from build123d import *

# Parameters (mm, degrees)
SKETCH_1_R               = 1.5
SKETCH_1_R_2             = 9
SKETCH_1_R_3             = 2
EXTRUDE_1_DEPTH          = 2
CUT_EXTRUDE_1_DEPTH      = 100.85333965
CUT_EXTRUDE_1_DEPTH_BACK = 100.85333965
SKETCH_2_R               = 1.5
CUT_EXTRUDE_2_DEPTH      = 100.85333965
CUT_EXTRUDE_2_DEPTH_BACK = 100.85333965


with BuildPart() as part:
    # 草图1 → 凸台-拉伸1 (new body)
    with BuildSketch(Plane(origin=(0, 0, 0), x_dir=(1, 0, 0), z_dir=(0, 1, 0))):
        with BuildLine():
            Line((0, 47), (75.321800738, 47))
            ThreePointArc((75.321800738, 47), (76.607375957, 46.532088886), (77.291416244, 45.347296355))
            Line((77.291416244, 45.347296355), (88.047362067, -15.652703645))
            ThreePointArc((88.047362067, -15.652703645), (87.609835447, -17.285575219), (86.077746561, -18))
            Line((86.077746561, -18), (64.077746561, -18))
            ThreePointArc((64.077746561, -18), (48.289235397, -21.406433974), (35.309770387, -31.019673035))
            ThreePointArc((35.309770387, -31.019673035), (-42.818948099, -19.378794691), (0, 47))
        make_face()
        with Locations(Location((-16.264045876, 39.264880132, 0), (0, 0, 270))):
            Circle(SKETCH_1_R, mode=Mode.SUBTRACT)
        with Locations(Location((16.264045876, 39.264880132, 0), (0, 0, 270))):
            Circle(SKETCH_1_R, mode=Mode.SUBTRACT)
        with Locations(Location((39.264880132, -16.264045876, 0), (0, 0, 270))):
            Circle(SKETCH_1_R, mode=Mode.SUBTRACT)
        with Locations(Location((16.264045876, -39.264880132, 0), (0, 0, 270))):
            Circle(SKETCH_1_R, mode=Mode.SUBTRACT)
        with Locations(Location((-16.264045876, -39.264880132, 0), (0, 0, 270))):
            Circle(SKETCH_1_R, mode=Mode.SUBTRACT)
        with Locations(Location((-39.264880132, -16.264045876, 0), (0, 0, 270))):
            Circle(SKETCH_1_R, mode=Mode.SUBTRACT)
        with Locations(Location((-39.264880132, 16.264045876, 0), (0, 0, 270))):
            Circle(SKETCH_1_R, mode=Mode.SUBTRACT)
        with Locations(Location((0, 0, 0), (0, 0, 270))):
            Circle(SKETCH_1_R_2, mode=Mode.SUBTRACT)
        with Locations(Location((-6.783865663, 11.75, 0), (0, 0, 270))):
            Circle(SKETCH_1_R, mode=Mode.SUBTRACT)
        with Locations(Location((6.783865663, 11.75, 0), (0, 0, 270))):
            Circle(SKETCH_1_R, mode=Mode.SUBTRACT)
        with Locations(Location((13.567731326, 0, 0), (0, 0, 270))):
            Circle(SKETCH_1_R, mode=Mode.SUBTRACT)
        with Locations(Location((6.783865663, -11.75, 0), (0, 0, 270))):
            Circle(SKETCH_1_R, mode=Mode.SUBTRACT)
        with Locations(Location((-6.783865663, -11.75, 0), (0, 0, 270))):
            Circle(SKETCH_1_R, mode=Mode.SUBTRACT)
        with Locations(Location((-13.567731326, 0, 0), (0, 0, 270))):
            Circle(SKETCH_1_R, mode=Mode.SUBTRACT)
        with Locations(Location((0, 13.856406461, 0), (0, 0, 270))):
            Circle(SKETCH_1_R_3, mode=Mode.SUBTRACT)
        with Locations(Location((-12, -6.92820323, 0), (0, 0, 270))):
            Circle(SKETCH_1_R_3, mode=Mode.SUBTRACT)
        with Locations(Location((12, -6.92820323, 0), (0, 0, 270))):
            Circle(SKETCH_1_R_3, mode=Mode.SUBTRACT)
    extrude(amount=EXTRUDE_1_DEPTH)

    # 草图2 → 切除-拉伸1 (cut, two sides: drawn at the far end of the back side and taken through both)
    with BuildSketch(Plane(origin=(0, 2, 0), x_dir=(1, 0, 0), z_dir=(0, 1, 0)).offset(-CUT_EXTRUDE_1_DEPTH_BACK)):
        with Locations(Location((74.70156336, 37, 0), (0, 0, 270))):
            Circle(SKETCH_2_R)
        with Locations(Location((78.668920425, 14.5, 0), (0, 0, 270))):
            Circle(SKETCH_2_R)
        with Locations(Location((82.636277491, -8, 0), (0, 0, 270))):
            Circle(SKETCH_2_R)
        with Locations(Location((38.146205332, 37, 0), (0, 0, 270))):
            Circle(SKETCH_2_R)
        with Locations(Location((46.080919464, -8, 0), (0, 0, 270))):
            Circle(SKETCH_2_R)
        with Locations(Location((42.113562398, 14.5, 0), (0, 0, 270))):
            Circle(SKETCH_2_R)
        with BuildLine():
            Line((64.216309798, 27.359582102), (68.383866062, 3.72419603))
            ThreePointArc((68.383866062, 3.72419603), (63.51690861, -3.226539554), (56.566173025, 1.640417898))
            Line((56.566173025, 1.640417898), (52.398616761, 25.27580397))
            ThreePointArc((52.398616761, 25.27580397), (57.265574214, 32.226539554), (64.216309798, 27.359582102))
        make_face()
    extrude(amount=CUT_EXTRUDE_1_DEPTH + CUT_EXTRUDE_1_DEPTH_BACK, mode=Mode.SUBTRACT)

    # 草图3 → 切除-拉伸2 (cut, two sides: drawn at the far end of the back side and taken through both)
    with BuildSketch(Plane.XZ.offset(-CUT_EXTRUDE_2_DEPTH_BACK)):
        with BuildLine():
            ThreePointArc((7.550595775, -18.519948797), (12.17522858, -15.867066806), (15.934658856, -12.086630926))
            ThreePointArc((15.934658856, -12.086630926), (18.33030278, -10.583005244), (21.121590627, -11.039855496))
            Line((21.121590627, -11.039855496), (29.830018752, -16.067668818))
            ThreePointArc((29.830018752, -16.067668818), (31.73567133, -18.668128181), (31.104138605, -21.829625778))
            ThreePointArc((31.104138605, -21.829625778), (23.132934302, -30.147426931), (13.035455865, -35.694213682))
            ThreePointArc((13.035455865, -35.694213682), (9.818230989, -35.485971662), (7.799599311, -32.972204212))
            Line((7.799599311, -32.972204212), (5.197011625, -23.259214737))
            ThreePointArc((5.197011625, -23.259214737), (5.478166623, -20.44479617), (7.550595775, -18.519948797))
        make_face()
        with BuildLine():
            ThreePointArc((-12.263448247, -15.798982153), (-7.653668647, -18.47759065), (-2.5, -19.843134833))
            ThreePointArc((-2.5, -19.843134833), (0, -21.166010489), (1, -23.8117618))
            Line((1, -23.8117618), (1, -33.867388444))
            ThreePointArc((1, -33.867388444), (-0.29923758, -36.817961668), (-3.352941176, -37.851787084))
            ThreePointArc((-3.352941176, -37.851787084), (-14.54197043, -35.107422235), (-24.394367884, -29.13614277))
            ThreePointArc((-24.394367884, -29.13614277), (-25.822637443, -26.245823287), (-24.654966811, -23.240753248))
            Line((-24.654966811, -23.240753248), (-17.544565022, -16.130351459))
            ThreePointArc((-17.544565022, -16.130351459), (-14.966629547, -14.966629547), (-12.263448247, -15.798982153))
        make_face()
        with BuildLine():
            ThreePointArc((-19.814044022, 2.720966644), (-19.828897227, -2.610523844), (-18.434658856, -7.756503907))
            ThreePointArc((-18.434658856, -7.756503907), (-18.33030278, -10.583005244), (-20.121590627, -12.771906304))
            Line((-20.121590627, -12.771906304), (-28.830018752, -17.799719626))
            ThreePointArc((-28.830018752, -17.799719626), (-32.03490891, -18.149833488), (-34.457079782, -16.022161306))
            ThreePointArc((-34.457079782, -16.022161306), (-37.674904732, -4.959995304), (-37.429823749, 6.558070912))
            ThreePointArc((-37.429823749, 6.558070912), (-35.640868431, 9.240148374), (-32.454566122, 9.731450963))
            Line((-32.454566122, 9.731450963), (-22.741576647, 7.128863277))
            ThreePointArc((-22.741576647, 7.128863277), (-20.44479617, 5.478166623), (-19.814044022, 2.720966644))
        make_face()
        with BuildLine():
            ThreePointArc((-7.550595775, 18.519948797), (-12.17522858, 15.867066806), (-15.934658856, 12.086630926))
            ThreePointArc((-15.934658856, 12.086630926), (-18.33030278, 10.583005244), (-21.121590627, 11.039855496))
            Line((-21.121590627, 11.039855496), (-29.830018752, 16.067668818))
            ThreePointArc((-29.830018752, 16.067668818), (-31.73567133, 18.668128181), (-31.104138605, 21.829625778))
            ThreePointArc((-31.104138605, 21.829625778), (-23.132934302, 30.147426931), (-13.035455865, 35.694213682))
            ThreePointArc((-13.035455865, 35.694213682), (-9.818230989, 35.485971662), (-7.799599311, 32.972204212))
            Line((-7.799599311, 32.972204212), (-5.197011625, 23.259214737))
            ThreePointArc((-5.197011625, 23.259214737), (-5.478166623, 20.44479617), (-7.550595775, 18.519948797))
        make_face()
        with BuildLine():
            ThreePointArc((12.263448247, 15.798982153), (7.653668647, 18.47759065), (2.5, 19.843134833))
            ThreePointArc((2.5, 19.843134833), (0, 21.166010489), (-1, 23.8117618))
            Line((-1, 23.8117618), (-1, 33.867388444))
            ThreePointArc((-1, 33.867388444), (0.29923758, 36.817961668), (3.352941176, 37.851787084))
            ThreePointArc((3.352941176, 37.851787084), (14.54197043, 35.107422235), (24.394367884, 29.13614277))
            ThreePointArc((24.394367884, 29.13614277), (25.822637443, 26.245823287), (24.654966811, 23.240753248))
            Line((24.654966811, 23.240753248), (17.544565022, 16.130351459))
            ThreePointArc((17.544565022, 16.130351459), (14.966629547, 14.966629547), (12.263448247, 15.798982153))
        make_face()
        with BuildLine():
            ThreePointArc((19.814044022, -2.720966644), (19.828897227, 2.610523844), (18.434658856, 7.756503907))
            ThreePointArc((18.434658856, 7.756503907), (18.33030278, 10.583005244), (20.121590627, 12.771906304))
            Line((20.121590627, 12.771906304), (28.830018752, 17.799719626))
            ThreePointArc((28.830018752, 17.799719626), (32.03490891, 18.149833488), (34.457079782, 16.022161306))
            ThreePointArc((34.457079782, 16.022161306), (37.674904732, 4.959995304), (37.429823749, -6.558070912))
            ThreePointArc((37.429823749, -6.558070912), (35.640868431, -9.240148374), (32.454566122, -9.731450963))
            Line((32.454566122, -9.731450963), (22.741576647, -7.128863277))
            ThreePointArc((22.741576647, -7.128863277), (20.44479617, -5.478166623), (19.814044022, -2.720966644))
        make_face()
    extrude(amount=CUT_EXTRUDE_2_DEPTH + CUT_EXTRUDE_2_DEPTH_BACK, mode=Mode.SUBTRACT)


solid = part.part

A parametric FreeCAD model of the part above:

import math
import FreeCAD as App
import Part
import Sketcher
from FreeCAD import Vector
Q = App.Units.Quantity

doc = App.newDocument("Part")
body = doc.addObject("PartDesign::Body", "Body")

# Sketch on XZ plane
sketch1 = body.newObject("Sketcher::SketchObject", "Sketch")
sketch1.AttachmentSupport = (doc.getObject("XZ_Plane"), [""])
sketch1.MapMode = "FlatFace"
sketch1.addGeometry(Part.LineSegment(Vector(75.3, -47, 0), Vector(0, -47, 0)), False)
sketch1.addGeometry(Part.ArcOfCircle(Part.Circle(Vector(0, 0, 0), Vector(0, 0, 1), 47), math.radians(41), math.radians(270)), False)
sketch1.addGeometry(Part.ArcOfCircle(Part.Circle(Vector(64.1, 56.3, 0), Vector(0, 0, 1), 38.3), math.radians(-139), math.radians(-90)), False)
sketch1.addGeometry(Part.LineSegment(Vector(64.1, 18, 0), Vector(86.1, 18, 0)), False)
sketch1.addGeometry(Part.ArcOfCircle(Part.Circle(Vector(86.1, 16, 0), Vector(0, 0, 1), 2), math.radians(-10), math.radians(90)), False)
sketch1.addGeometry(Part.LineSegment(Vector(88, 15.7, 0), Vector(77.3, -45.3, 0)), False)
sketch1.addGeometry(Part.ArcOfCircle(Part.Circle(Vector(75.3, -45, 0), Vector(0, 0, 1), 2), math.radians(-90), math.radians(-10)), False)
sketch1.addGeometry(Part.Circle(Vector(16.3, 39.3, 0), Vector(0, 0, 1), 1.5), False)
sketch1.addGeometry(Part.Circle(Vector(39.3, 16.3, 0), Vector(0, 0, 1), 1.5), False)
sketch1.addGeometry(Part.Circle(Vector(6.8, 11.8, 0), Vector(0, 0, 1), 1.5), False)
sketch1.addGeometry(Part.Circle(Vector(12, 6.9, 0), Vector(0, 0, 1), 2), False)
sketch1.addGeometry(Part.Circle(Vector(-16.3, 39.3, 0), Vector(0, 0, 1), 1.5), False)
sketch1.addGeometry(Part.Circle(Vector(-6.8, 11.8, 0), Vector(0, 0, 1), 1.5), False)
sketch1.addGeometry(Part.Circle(Vector(-12, 6.9, 0), Vector(0, 0, 1), 2), False)
sketch1.addGeometry(Part.Circle(Vector(-39.3, 16.3, 0), Vector(0, 0, 1), 1.5), False)
sketch1.addGeometry(Part.Circle(Vector(13.6, 0, 0), Vector(0, 0, 1), 1.5), False)
sketch1.addGeometry(Part.Circle(Vector(6.8, -11.8, 0), Vector(0, 0, 1), 1.5), False)
sketch1.addGeometry(Part.Circle(Vector(16.3, -39.3, 0), Vector(0, 0, 1), 1.5), False)
sketch1.addGeometry(Part.Circle(Vector(0, 0, 0), Vector(0, 0, 1), 9), False)
sketch1.addGeometry(Part.Circle(Vector(-13.6, 0, 0), Vector(0, 0, 1), 1.5), False)
sketch1.addGeometry(Part.Circle(Vector(0, -13.9, 0), Vector(0, 0, 1), 2), False)
sketch1.addGeometry(Part.Circle(Vector(-6.8, -11.8, 0), Vector(0, 0, 1), 1.5), False)
sketch1.addGeometry(Part.Circle(Vector(-39.3, -16.3, 0), Vector(0, 0, 1), 1.5), False)
sketch1.addGeometry(Part.Circle(Vector(-16.3, -39.3, 0), Vector(0, 0, 1), 1.5), False)
sketch1.addConstraint(Sketcher.Constraint("Tangent", 0, 2, 1, 2))
sketch1.addConstraint(Sketcher.Constraint("Tangent", 1, 1, 2, 1))
sketch1.addConstraint(Sketcher.Constraint("Tangent", 2, 2, 3, 1))
sketch1.addConstraint(Sketcher.Constraint("Tangent", 3, 2, 4, 2))
sketch1.addConstraint(Sketcher.Constraint("Tangent", 4, 1, 5, 1))
sketch1.addConstraint(Sketcher.Constraint("Tangent", 5, 2, 6, 2))
sketch1.addConstraint(Sketcher.Constraint("Tangent", 6, 1, 0, 1))
sketch1.addConstraint(Sketcher.Constraint("Horizontal", 0))
sketch1.addConstraint(Sketcher.Constraint("Horizontal", 3))
sketch1.addConstraint(Sketcher.Constraint("Coincident", 1, 3, -1, 1))
sketch1.addConstraint(Sketcher.Constraint("Coincident", 18, 3, -1, 1))
sketch1.addConstraint(Sketcher.Constraint("Equal", 4, 6))
sketch1.addConstraint(Sketcher.Constraint("Equal", 7, 8))
sketch1.addConstraint(Sketcher.Constraint("Equal", 8, 9))
sketch1.addConstraint(Sketcher.Constraint("Equal", 6, 10))
sketch1.addConstraint(Sketcher.Constraint("Equal", 9, 11))
sketch1.addConstraint(Sketcher.Constraint("Equal", 11, 12))
sketch1.addConstraint(Sketcher.Constraint("Equal", 10, 13))
sketch1.addConstraint(Sketcher.Constraint("Equal", 12, 14))
sketch1.addConstraint(Sketcher.Constraint("Equal", 14, 15))
sketch1.addConstraint(Sketcher.Constraint("Equal", 15, 16))
sketch1.addConstraint(Sketcher.Constraint("Equal", 16, 17))
sketch1.addConstraint(Sketcher.Constraint("Equal", 17, 19))
sketch1.addConstraint(Sketcher.Constraint("Equal", 13, 20))
sketch1.addConstraint(Sketcher.Constraint("Equal", 19, 21))
sketch1.addConstraint(Sketcher.Constraint("Equal", 21, 22))
sketch1.addConstraint(Sketcher.Constraint("Equal", 22, 23))
sketch1.addConstraint(Sketcher.Constraint("Symmetric", 12, 3, 16, 3, -1, 1))
sketch1.addConstraint(Sketcher.Constraint("Symmetric", 11, 3, 17, 3, -1, 1))
sketch1.addConstraint(Sketcher.Constraint("Symmetric", 15, 3, 19, 3, -1, 1))
sketch1.addConstraint(Sketcher.Constraint("Symmetric", 9, 3, 21, 3, -1, 1))
sketch1.addConstraint(Sketcher.Constraint("Symmetric", 8, 3, 22, 3, -1, 1))
sketch1.addConstraint(Sketcher.Constraint("Symmetric", 7, 3, 23, 3, -1, 1))
sketch1.addConstraint(Sketcher.Constraint("Symmetric", 7, 3, 11, 3, -2))
sketch1.addConstraint(Sketcher.Constraint("Symmetric", 9, 3, 12, 3, -2))
sketch1.addConstraint(Sketcher.Constraint("Symmetric", 10, 3, 13, 3, -2))
sketch1.addConstraint(Sketcher.Constraint("Symmetric", 8, 3, 14, 3, -2))
sketch1.addConstraint(Sketcher.Constraint("PointOnObject", 15, 3, -1))
sketch1.addConstraint(Sketcher.Constraint("PointOnObject", 20, 3, -2))
sketch1.addConstraint(Sketcher.Constraint("Diameter", 7, Q("3 mm")))
sketch1.addConstraint(Sketcher.Constraint("Diameter", 10, Q("4 mm")))
sketch1.addConstraint(Sketcher.Constraint("Diameter", 18, Q("18 mm")))
sketch1.addConstraint(Sketcher.Constraint("Radius", 1, Q("47 mm")))
sketch1.addConstraint(Sketcher.Constraint("DistanceX", 3, 1, 3, 2, Q("22 mm")))
sketch1.addConstraint(Sketcher.Constraint("Angle", 5, Q("-100 deg")))
sketch1.addConstraint(Sketcher.Constraint("DistanceY", -1, 1, 4, 3, Q("16 mm")))
sketch1.addConstraint(Sketcher.Constraint("DistanceX", -1, 1, 10, 3, Q("12 mm")))
sketch1.addConstraint(Sketcher.Constraint("DistanceY", 16, 3, 9, 3, Q("23.5 mm")))
sketch1.addConstraint(Sketcher.Constraint("DistanceX", 0, 2, 0, 1, Q("75.321801 mm")))
sketch1.addConstraint(Sketcher.Constraint("DistanceX", 7, 3, 2, 3, Q("47.813701 mm")))
sketch1.addConstraint(Sketcher.Constraint("DistanceY", -1, 1, 7, 3, Q("39.26488 mm")))
sketch1.addConstraint(Sketcher.Constraint("DistanceX", -1, 1, 8, 3, Q("39.26488 mm")))
sketch1.addConstraint(Sketcher.Constraint("DistanceX", -1, 1, 15, 3, Q("13.567731 mm")))
sketch1.addConstraint(Sketcher.Constraint("DistanceX", 9, 3, 7, 3, Q("9.48018 mm")))
sketch1.addConstraint(Sketcher.Constraint("DistanceY", 10, 3, 2, 3, Q("49.364169 mm")))
sketch1.addConstraint(Sketcher.Constraint("DistanceY", 22, 3, 14, 3, Q("32.528092 mm")))
sketch1.addConstraint(Sketcher.Constraint("DistanceY", 22, 3, 20, 3, Q("2.407639 mm")))
pad1 = body.newObject("PartDesign::Pad", "Pad")
pad1.Profile = sketch1
pad1.Length = 2
pad1.Reversed = True

# Sketch on XZ plane
sketch2 = body.newObject("Sketcher::SketchObject", "Sketch001")
sketch2.AttachmentSupport = (doc.getObject("XZ_Plane"), [""])
sketch2.MapMode = "FlatFace"
sketch2.AttachmentOffset = App.Placement(Vector(0, 0, -2), App.Rotation())
sketch2.addGeometry(Part.Circle(Vector(74.7, -37, 0), Vector(0, 0, 1), 1.5), False)
sketch2.addGeometry(Part.Circle(Vector(78.7, -14.5, 0), Vector(0, 0, 1), 1.5), False)
sketch2.addGeometry(Part.Circle(Vector(82.6, 8, 0), Vector(0, 0, 1), 1.5), False)
sketch2.addGeometry(Part.Circle(Vector(38.1, -37, 0), Vector(0, 0, 1), 1.5), False)
sketch2.addGeometry(Part.Circle(Vector(46.1, 8, 0), Vector(0, 0, 1), 1.5), False)
sketch2.addGeometry(Part.Circle(Vector(42.1, -14.5, 0), Vector(0, 0, 1), 1.5), False)
sketch2.addGeometry(Part.LineSegment(Vector(68.4, -3.7, 0), Vector(64.2, -27.4, 0)), False)
sketch2.addGeometry(Part.ArcOfCircle(Part.Circle(Vector(58.3, -26.3, 0), Vector(0, 0, 1), 6), math.radians(170), math.radians(350)), False)
sketch2.addGeometry(Part.LineSegment(Vector(52.4, -25.3, 0), Vector(56.6, -1.6, 0)), False)
sketch2.addGeometry(Part.ArcOfCircle(Part.Circle(Vector(62.5, -2.7, 0), Vector(0, 0, 1), 6), math.radians(-10), math.radians(170)), False)
sketch2.addConstraint(Sketcher.Constraint("Tangent", 6, 2, 7, 2))
sketch2.addConstraint(Sketcher.Constraint("Tangent", 7, 1, 8, 1))
sketch2.addConstraint(Sketcher.Constraint("Tangent", 8, 2, 9, 2))
sketch2.addConstraint(Sketcher.Constraint("Tangent", 9, 1, 6, 1))
sketch2.addConstraint(Sketcher.Constraint("Equal", 0, 1))
sketch2.addConstraint(Sketcher.Constraint("Equal", 1, 2))
sketch2.addConstraint(Sketcher.Constraint("Equal", 2, 3))
sketch2.addConstraint(Sketcher.Constraint("Equal", 3, 4))
sketch2.addConstraint(Sketcher.Constraint("Equal", 4, 5))
sketch2.addConstraint(Sketcher.Constraint("Equal", 7, 9))
sketch2.addConstraint(Sketcher.Constraint("Horizontal", 0, 3, 3, 3))
sketch2.addConstraint(Sketcher.Constraint("Horizontal", 2, 3, 4, 3))
sketch2.addConstraint(Sketcher.Constraint("Horizontal", 1, 3, 5, 3))
sketch2.addConstraint(Sketcher.Constraint("Diameter", 0, Q("3 mm")))
sketch2.addConstraint(Sketcher.Constraint("Radius", 7, Q("6 mm")))
sketch2.addConstraint(Sketcher.Constraint("Angle", 6, Q("-100 deg")))
sketch2.addConstraint(Sketcher.Constraint("Distance", 6, Q("24 mm")))
sketch2.addConstraint(Sketcher.Constraint("DistanceY", 0, 3, -1, 1, Q("37 mm")))
sketch2.addConstraint(Sketcher.Constraint("DistanceY", -1, 1, 2, 3, Q("8 mm")))
sketch2.addConstraint(Sketcher.Constraint("DistanceY", 1, 3, -1, 1, Q("14.5 mm")))
sketch2.addConstraint(Sketcher.Constraint("DistanceX", 4, 3, 1, 3, Q("32.588001 mm")))
sketch2.addConstraint(Sketcher.Constraint("DistanceX", 5, 3, 0, 3, Q("32.588001 mm")))
sketch2.addConstraint(Sketcher.Constraint("DistanceX", 7, 3, 0, 3, Q("16.3941 mm")))
sketch2.addConstraint(Sketcher.Constraint("DistanceX", 4, 3, 9, 3, Q("16.3941 mm")))
sketch2.addConstraint(Sketcher.Constraint("DistanceX", -1, 1, 1, 3, Q("78.66892 mm")))
sketch2.addConstraint(Sketcher.Constraint("DistanceX", 3, 3, 0, 3, Q("36.555358 mm")))
sketch2.addConstraint(Sketcher.Constraint("DistanceX", 4, 3, 2, 3, Q("36.555358 mm")))
sketch2.addConstraint(Sketcher.Constraint("DistanceY", 7, 3, -1, 1, Q("26.317693 mm")))
pocket1 = body.newObject("PartDesign::Pocket", "Pocket")
pocket1.Profile = sketch2
pocket1.Type = "ThroughAll"
pocket1.Midplane = True

# Sketch on XZ plane
sketch3 = body.newObject("Sketcher::SketchObject", "Sketch002")
sketch3.AttachmentSupport = (doc.getObject("XZ_Plane"), [""])
sketch3.MapMode = "FlatFace"
sketch3.addGeometry(Part.ArcOfCircle(Part.Circle(Vector(0, 0, 0), Vector(0, 0, 1), 20), math.radians(-68), math.radians(-37)), False)
sketch3.addGeometry(Part.ArcOfCircle(Part.Circle(Vector(9.1, -22.2, 0), Vector(0, 0, 1), 4), math.radians(112), math.radians(195)), False)
sketch3.addGeometry(Part.LineSegment(Vector(5.2, -23.3, 0), Vector(7.8, -33, 0)), False)
sketch3.addGeometry(Part.ArcOfCircle(Part.Circle(Vector(11.7, -31.9, 0), Vector(0, 0, 1), 4), math.radians(-165), math.radians(-70)), False)
sketch3.addGeometry(Part.ArcOfCircle(Part.Circle(Vector(0, 0, 0), Vector(0, 0, 1), 38), math.radians(-70), math.radians(-35)), False)
sketch3.addGeometry(Part.ArcOfCircle(Part.Circle(Vector(27.8, -19.5, 0), Vector(0, 0, 1), 4), math.radians(-35), math.radians(60)), False)
sketch3.addGeometry(Part.LineSegment(Vector(29.8, -16.1, 0), Vector(21.1, -11, 0)), False)
sketch3.addGeometry(Part.ArcOfCircle(Part.Circle(Vector(19.1, -14.5, 0), Vector(0, 0, 1), 4), math.radians(60), math.radians(143)), False)
sketch3.addGeometry(Part.ArcOfCircle(Part.Circle(Vector(0, 0, 0), Vector(0, 0, 1), 20), math.radians(-128), math.radians(-97)), False)
sketch3.addGeometry(Part.ArcOfCircle(Part.Circle(Vector(-14.7, -19, 0), Vector(0, 0, 1), 4), math.radians(52), math.radians(135)), False)
sketch3.addGeometry(Part.LineSegment(Vector(-17.5, -16.1, 0), Vector(-24.7, -23.2, 0)), False)
sketch3.addGeometry(Part.ArcOfCircle(Part.Circle(Vector(-21.8, -26.1, 0), Vector(0, 0, 1), 4), math.radians(135), math.radians(230)), False)
sketch3.addGeometry(Part.ArcOfCircle(Part.Circle(Vector(0, 0, 0), Vector(0, 0, 1), 38), math.radians(-130), math.radians(-95)), False)
sketch3.addGeometry(Part.ArcOfCircle(Part.Circle(Vector(-3, -33.9, 0), Vector(0, 0, 1), 4), math.radians(-95), math.radians(0)), False)
sketch3.addGeometry(Part.LineSegment(Vector(1, -33.9, 0), Vector(1, -23.8, 0)), False)
sketch3.addGeometry(Part.ArcOfCircle(Part.Circle(Vector(-3, -23.8, 0), Vector(0, 0, 1), 4), math.radians(0), math.radians(83)), False)
sketch3.addGeometry(Part.ArcOfCircle(Part.Circle(Vector(0, 0, 0), Vector(0, 0, 1), 20), math.radians(172), math.radians(203)), False)
sketch3.addGeometry(Part.ArcOfCircle(Part.Circle(Vector(-23.8, 3.3, 0), Vector(0, 0, 1), 4), math.radians(-8), math.radians(75)), False)
sketch3.addGeometry(Part.LineSegment(Vector(-22.7, 7.1, 0), Vector(-32.5, 9.7, 0)), False)
sketch3.addGeometry(Part.ArcOfCircle(Part.Circle(Vector(-33.5, 5.9, 0), Vector(0, 0, 1), 4), math.radians(75), math.radians(170)), False)
sketch3.addGeometry(Part.ArcOfCircle(Part.Circle(Vector(0, 0, 0), Vector(0, 0, 1), 38), math.radians(170), math.radians(205)), False)
sketch3.addGeometry(Part.ArcOfCircle(Part.Circle(Vector(-30.8, -14.3, 0), Vector(0, 0, 1), 4), math.radians(-155), math.radians(-60)), False)
sketch3.addGeometry(Part.LineSegment(Vector(-28.8, -17.8, 0), Vector(-20.1, -12.8, 0)), False)
sketch3.addGeometry(Part.ArcOfCircle(Part.Circle(Vector(-22.1, -9.3, 0), Vector(0, 0, 1), 4), math.radians(-60), math.radians(23)), False)
sketch3.addGeometry(Part.ArcOfCircle(Part.Circle(Vector(0, 0, 0), Vector(0, 0, 1), 20), math.radians(112), math.radians(143)), False)
sketch3.addGeometry(Part.ArcOfCircle(Part.Circle(Vector(-9.1, 22.2, 0), Vector(0, 0, 1), 4), math.radians(-68), math.radians(15)), False)
sketch3.addGeometry(Part.LineSegment(Vector(-5.2, 23.3, 0), Vector(-7.8, 33, 0)), False)
sketch3.addGeometry(Part.ArcOfCircle(Part.Circle(Vector(-11.7, 31.9, 0), Vector(0, 0, 1), 4), math.radians(15), math.radians(110)), False)
sketch3.addGeometry(Part.ArcOfCircle(Part.Circle(Vector(0, 0, 0), Vector(0, 0, 1), 38), math.radians(110), math.radians(145)), False)
sketch3.addGeometry(Part.ArcOfCircle(Part.Circle(Vector(-27.8, 19.5, 0), Vector(0, 0, 1), 4), math.radians(145), math.radians(240)), False)
sketch3.addGeometry(Part.LineSegment(Vector(-29.8, 16.1, 0), Vector(-21.1, 11, 0)), False)
sketch3.addGeometry(Part.ArcOfCircle(Part.Circle(Vector(-19.1, 14.5, 0), Vector(0, 0, 1), 4), math.radians(-120), math.radians(-37)), False)
sketch3.addGeometry(Part.ArcOfCircle(Part.Circle(Vector(0, 0, 0), Vector(0, 0, 1), 20), math.radians(52), math.radians(83)), False)
sketch3.addGeometry(Part.ArcOfCircle(Part.Circle(Vector(14.7, 19, 0), Vector(0, 0, 1), 4), math.radians(-128), math.radians(-45)), False)
sketch3.addGeometry(Part.LineSegment(Vector(17.5, 16.1, 0), Vector(24.7, 23.2, 0)), False)
sketch3.addGeometry(Part.ArcOfCircle(Part.Circle(Vector(21.8, 26.1, 0), Vector(0, 0, 1), 4), math.radians(-45), math.radians(50)), False)
sketch3.addGeometry(Part.ArcOfCircle(Part.Circle(Vector(0, 0, 0), Vector(0, 0, 1), 38), math.radians(50), math.radians(85)), False)
sketch3.addGeometry(Part.ArcOfCircle(Part.Circle(Vector(3, 33.9, 0), Vector(0, 0, 1), 4), math.radians(85), math.radians(180)), False)
sketch3.addGeometry(Part.LineSegment(Vector(-1, 33.9, 0), Vector(-1, 23.8, 0)), False)
sketch3.addGeometry(Part.ArcOfCircle(Part.Circle(Vector(3, 23.8, 0), Vector(0, 0, 1), 4), math.radians(180), math.radians(263)), False)
sketch3.addGeometry(Part.ArcOfCircle(Part.Circle(Vector(0, 0, 0), Vector(0, 0, 1), 20), math.radians(-8), math.radians(23)), False)
sketch3.addGeometry(Part.ArcOfCircle(Part.Circle(Vector(23.8, -3.3, 0), Vector(0, 0, 1), 4), math.radians(172), math.radians(255)), False)
sketch3.addGeometry(Part.LineSegment(Vector(22.7, -7.1, 0), Vector(32.5, -9.7, 0)), False)
sketch3.addGeometry(Part.ArcOfCircle(Part.Circle(Vector(33.5, -5.9, 0), Vector(0, 0, 1), 4), math.radians(-105), math.radians(-10)), False)
sketch3.addGeometry(Part.ArcOfCircle(Part.Circle(Vector(0, 0, 0), Vector(0, 0, 1), 38), math.radians(-10), math.radians(25)), False)
sketch3.addGeometry(Part.ArcOfCircle(Part.Circle(Vector(30.8, 14.3, 0), Vector(0, 0, 1), 4), math.radians(25), math.radians(120)), False)
sketch3.addGeometry(Part.LineSegment(Vector(28.8, 17.8, 0), Vector(20.1, 12.8, 0)), False)
sketch3.addGeometry(Part.ArcOfCircle(Part.Circle(Vector(22.1, 9.3, 0), Vector(0, 0, 1), 4), math.radians(120), math.radians(203)), False)
sketch3.addConstraint(Sketcher.Constraint("Tangent", 0, 1, 1, 1))
sketch3.addConstraint(Sketcher.Constraint("Tangent", 1, 2, 2, 1))
sketch3.addConstraint(Sketcher.Constraint("Tangent", 2, 2, 3, 1))
sketch3.addConstraint(Sketcher.Constraint("Tangent", 3, 2, 4, 1))
sketch3.addConstraint(Sketcher.Constraint("Tangent", 4, 2, 5, 1))
sketch3.addConstraint(Sketcher.Constraint("Tangent", 5, 2, 6, 1))
sketch3.addConstraint(Sketcher.Constraint("Tangent", 6, 2, 7, 1))
sketch3.addConstraint(Sketcher.Constraint("Tangent", 7, 2, 0, 2))
sketch3.addConstraint(Sketcher.Constraint("Tangent", 8, 1, 9, 1))
sketch3.addConstraint(Sketcher.Constraint("Tangent", 9, 2, 10, 1))
sketch3.addConstraint(Sketcher.Constraint("Tangent", 10, 2, 11, 1))
sketch3.addConstraint(Sketcher.Constraint("Tangent", 11, 2, 12, 1))
sketch3.addConstraint(Sketcher.Constraint("Tangent", 12, 2, 13, 1))
sketch3.addConstraint(Sketcher.Constraint("Tangent", 13, 2, 14, 1))
sketch3.addConstraint(Sketcher.Constraint("Tangent", 14, 2, 15, 1))
sketch3.addConstraint(Sketcher.Constraint("Tangent", 15, 2, 8, 2))
sketch3.addConstraint(Sketcher.Constraint("Tangent", 16, 1, 17, 1))
sketch3.addConstraint(Sketcher.Constraint("Tangent", 17, 2, 18, 1))
sketch3.addConstraint(Sketcher.Constraint("Tangent", 18, 2, 19, 1))
sketch3.addConstraint(Sketcher.Constraint("Tangent", 19, 2, 20, 1))
sketch3.addConstraint(Sketcher.Constraint("Tangent", 20, 2, 21, 1))
sketch3.addConstraint(Sketcher.Constraint("Tangent", 21, 2, 22, 1))
sketch3.addConstraint(Sketcher.Constraint("Tangent", 22, 2, 23, 1))
sketch3.addConstraint(Sketcher.Constraint("Tangent", 23, 2, 16, 2))
sketch3.addConstraint(Sketcher.Constraint("Tangent", 24, 1, 25, 1))
sketch3.addConstraint(Sketcher.Constraint("Tangent", 25, 2, 26, 1))
sketch3.addConstraint(Sketcher.Constraint("Tangent", 26, 2, 27, 1))
sketch3.addConstraint(Sketcher.Constraint("Tangent", 27, 2, 28, 1))
sketch3.addConstraint(Sketcher.Constraint("Tangent", 28, 2, 29, 1))
sketch3.addConstraint(Sketcher.Constraint("Tangent", 29, 2, 30, 1))
sketch3.addConstraint(Sketcher.Constraint("Tangent", 30, 2, 31, 1))
sketch3.addConstraint(Sketcher.Constraint("Tangent", 31, 2, 24, 2))
sketch3.addConstraint(Sketcher.Constraint("Tangent", 32, 1, 33, 1))
sketch3.addConstraint(Sketcher.Constraint("Tangent", 33, 2, 34, 1))
sketch3.addConstraint(Sketcher.Constraint("Tangent", 34, 2, 35, 1))
sketch3.addConstraint(Sketcher.Constraint("Tangent", 35, 2, 36, 1))
sketch3.addConstraint(Sketcher.Constraint("Tangent", 36, 2, 37, 1))
sketch3.addConstraint(Sketcher.Constraint("Tangent", 37, 2, 38, 1))
sketch3.addConstraint(Sketcher.Constraint("Tangent", 38, 2, 39, 1))
sketch3.addConstraint(Sketcher.Constraint("Tangent", 39, 2, 32, 2))
sketch3.addConstraint(Sketcher.Constraint("Tangent", 40, 1, 41, 1))
sketch3.addConstraint(Sketcher.Constraint("Tangent", 41, 2, 42, 1))
sketch3.addConstraint(Sketcher.Constraint("Tangent", 42, 2, 43, 1))
sketch3.addConstraint(Sketcher.Constraint("Tangent", 43, 2, 44, 1))
sketch3.addConstraint(Sketcher.Constraint("Tangent", 44, 2, 45, 1))
sketch3.addConstraint(Sketcher.Constraint("Tangent", 45, 2, 46, 1))
sketch3.addConstraint(Sketcher.Constraint("Tangent", 46, 2, 47, 1))
sketch3.addConstraint(Sketcher.Constraint("Tangent", 47, 2, 40, 2))
sketch3.addConstraint(Sketcher.Constraint("Vertical", 14))
sketch3.addConstraint(Sketcher.Constraint("Vertical", 38))
sketch3.addConstraint(Sketcher.Constraint("Coincident", 0, 3, -1, 1))
sketch3.addConstraint(Sketcher.Constraint("Coincident", 4, 3, -1, 1))
sketch3.addConstraint(Sketcher.Constraint("Coincident", 8, 3, -1, 1))
sketch3.addConstraint(Sketcher.Constraint("Coincident", 12, 3, -1, 1))
sketch3.addConstraint(Sketcher.Constraint("Coincident", 16, 3, -1, 1))
sketch3.addConstraint(Sketcher.Constraint("Coincident", 20, 3, -1, 1))
sketch3.addConstraint(Sketcher.Constraint("Coincident", 24, 3, -1, 1))
sketch3.addConstraint(Sketcher.Constraint("Coincident", 28, 3, -1, 1))
sketch3.addConstraint(Sketcher.Constraint("Coincident", 32, 3, -1, 1))
sketch3.addConstraint(Sketcher.Constraint("Coincident", 36, 3, -1, 1))
sketch3.addConstraint(Sketcher.Constraint("Coincident", 40, 3, -1, 1))
sketch3.addConstraint(Sketcher.Constraint("Coincident", 44, 3, -1, 1))
sketch3.addConstraint(Sketcher.Constraint("Equal", 1, 3))
sketch3.addConstraint(Sketcher.Constraint("Equal", 3, 5))
sketch3.addConstraint(Sketcher.Constraint("Equal", 5, 7))
sketch3.addConstraint(Sketcher.Constraint("Equal", 0, 8))
sketch3.addConstraint(Sketcher.Constraint("Equal", 7, 9))
sketch3.addConstraint(Sketcher.Constraint("Equal", 9, 11))
sketch3.addConstraint(Sketcher.Constraint("Equal", 4, 12))
sketch3.addConstraint(Sketcher.Constraint("Equal", 11, 13))
sketch3.addConstraint(Sketcher.Constraint("Equal", 13, 15))
sketch3.addConstraint(Sketcher.Constraint("Equal", 8, 16))
sketch3.addConstraint(Sketcher.Constraint("Equal", 15, 17))
sketch3.addConstraint(Sketcher.Constraint("Equal", 17, 19))
sketch3.addConstraint(Sketcher.Constraint("Equal", 12, 20))
sketch3.addConstraint(Sketcher.Constraint("Equal", 19, 21))
sketch3.addConstraint(Sketcher.Constraint("Equal", 21, 23))
sketch3.addConstraint(Sketcher.Constraint("Equal", 16, 24))
sketch3.addConstraint(Sketcher.Constraint("Equal", 23, 25))
sketch3.addConstraint(Sketcher.Constraint("Equal", 25, 27))
sketch3.addConstraint(Sketcher.Constraint("Equal", 20, 28))
sketch3.addConstraint(Sketcher.Constraint("Equal", 27, 29))
sketch3.addConstraint(Sketcher.Constraint("Equal", 29, 31))
sketch3.addConstraint(Sketcher.Constraint("Equal", 24, 32))
sketch3.addConstraint(Sketcher.Constraint("Equal", 31, 33))
sketch3.addConstraint(Sketcher.Constraint("Equal", 33, 35))
sketch3.addConstraint(Sketcher.Constraint("Equal", 28, 36))
sketch3.addConstraint(Sketcher.Constraint("Equal", 35, 37))
sketch3.addConstraint(Sketcher.Constraint("Equal", 37, 39))
sketch3.addConstraint(Sketcher.Constraint("Equal", 32, 40))
sketch3.addConstraint(Sketcher.Constraint("Equal", 39, 41))
sketch3.addConstraint(Sketcher.Constraint("Equal", 41, 43))
sketch3.addConstraint(Sketcher.Constraint("Equal", 36, 44))
sketch3.addConstraint(Sketcher.Constraint("Equal", 43, 45))
sketch3.addConstraint(Sketcher.Constraint("Equal", 45, 47))
sketch3.addConstraint(Sketcher.Constraint("Symmetric", 1, 2, 25, 2, -1, 1))
sketch3.addConstraint(Sketcher.Constraint("Symmetric", 5, 2, 29, 2, -1, 1))
sketch3.addConstraint(Sketcher.Constraint("Symmetric", 9, 2, 33, 2, -1, 1))
sketch3.addConstraint(Sketcher.Constraint("Symmetric", 17, 2, 41, 2, -1, 1))
sketch3.addConstraint(Sketcher.Constraint("Symmetric", 21, 2, 45, 2, -1, 1))
sketch3.addConstraint(Sketcher.Constraint("Equal", 14, 38))
sketch3.addConstraint(Sketcher.Constraint("Equal", 2, 6))
sketch3.addConstraint(Sketcher.Constraint("Equal", 6, 10))
sketch3.addConstraint(Sketcher.Constraint("Equal", 10, 18))
sketch3.addConstraint(Sketcher.Constraint("Equal", 18, 22))
sketch3.addConstraint(Sketcher.Constraint("Radius", 0, Q("20 mm")))
sketch3.addConstraint(Sketcher.Constraint("Radius", 1, Q("4 mm")))
sketch3.addConstraint(Sketcher.Constraint("Radius", 4, Q("38 mm")))
sketch3.addConstraint(Sketcher.Constraint("Angle", 2, Q("-75 deg")))
sketch3.addConstraint(Sketcher.Constraint("Angle", 6, Q("150 deg")))
sketch3.addConstraint(Sketcher.Constraint("Angle", 10, Q("-135 deg")))
sketch3.addConstraint(Sketcher.Constraint("Angle", 18, Q("165 deg")))
sketch3.addConstraint(Sketcher.Constraint("Angle", 22, Q("30 deg")))
sketch3.addConstraint(Sketcher.Constraint("DistanceX", 13, 3, -1, 1, Q("3 mm")))
sketch3.addConstraint(Sketcher.Constraint("DistanceX", -1, 1, 2, 2, Q("7.799599 mm")))
pocket2 = body.newObject("PartDesign::Pocket", "Pocket001")
pocket2.Profile = sketch3
pocket2.Type = "ThroughAll"
pocket2.Midplane = True

doc.recompute()
